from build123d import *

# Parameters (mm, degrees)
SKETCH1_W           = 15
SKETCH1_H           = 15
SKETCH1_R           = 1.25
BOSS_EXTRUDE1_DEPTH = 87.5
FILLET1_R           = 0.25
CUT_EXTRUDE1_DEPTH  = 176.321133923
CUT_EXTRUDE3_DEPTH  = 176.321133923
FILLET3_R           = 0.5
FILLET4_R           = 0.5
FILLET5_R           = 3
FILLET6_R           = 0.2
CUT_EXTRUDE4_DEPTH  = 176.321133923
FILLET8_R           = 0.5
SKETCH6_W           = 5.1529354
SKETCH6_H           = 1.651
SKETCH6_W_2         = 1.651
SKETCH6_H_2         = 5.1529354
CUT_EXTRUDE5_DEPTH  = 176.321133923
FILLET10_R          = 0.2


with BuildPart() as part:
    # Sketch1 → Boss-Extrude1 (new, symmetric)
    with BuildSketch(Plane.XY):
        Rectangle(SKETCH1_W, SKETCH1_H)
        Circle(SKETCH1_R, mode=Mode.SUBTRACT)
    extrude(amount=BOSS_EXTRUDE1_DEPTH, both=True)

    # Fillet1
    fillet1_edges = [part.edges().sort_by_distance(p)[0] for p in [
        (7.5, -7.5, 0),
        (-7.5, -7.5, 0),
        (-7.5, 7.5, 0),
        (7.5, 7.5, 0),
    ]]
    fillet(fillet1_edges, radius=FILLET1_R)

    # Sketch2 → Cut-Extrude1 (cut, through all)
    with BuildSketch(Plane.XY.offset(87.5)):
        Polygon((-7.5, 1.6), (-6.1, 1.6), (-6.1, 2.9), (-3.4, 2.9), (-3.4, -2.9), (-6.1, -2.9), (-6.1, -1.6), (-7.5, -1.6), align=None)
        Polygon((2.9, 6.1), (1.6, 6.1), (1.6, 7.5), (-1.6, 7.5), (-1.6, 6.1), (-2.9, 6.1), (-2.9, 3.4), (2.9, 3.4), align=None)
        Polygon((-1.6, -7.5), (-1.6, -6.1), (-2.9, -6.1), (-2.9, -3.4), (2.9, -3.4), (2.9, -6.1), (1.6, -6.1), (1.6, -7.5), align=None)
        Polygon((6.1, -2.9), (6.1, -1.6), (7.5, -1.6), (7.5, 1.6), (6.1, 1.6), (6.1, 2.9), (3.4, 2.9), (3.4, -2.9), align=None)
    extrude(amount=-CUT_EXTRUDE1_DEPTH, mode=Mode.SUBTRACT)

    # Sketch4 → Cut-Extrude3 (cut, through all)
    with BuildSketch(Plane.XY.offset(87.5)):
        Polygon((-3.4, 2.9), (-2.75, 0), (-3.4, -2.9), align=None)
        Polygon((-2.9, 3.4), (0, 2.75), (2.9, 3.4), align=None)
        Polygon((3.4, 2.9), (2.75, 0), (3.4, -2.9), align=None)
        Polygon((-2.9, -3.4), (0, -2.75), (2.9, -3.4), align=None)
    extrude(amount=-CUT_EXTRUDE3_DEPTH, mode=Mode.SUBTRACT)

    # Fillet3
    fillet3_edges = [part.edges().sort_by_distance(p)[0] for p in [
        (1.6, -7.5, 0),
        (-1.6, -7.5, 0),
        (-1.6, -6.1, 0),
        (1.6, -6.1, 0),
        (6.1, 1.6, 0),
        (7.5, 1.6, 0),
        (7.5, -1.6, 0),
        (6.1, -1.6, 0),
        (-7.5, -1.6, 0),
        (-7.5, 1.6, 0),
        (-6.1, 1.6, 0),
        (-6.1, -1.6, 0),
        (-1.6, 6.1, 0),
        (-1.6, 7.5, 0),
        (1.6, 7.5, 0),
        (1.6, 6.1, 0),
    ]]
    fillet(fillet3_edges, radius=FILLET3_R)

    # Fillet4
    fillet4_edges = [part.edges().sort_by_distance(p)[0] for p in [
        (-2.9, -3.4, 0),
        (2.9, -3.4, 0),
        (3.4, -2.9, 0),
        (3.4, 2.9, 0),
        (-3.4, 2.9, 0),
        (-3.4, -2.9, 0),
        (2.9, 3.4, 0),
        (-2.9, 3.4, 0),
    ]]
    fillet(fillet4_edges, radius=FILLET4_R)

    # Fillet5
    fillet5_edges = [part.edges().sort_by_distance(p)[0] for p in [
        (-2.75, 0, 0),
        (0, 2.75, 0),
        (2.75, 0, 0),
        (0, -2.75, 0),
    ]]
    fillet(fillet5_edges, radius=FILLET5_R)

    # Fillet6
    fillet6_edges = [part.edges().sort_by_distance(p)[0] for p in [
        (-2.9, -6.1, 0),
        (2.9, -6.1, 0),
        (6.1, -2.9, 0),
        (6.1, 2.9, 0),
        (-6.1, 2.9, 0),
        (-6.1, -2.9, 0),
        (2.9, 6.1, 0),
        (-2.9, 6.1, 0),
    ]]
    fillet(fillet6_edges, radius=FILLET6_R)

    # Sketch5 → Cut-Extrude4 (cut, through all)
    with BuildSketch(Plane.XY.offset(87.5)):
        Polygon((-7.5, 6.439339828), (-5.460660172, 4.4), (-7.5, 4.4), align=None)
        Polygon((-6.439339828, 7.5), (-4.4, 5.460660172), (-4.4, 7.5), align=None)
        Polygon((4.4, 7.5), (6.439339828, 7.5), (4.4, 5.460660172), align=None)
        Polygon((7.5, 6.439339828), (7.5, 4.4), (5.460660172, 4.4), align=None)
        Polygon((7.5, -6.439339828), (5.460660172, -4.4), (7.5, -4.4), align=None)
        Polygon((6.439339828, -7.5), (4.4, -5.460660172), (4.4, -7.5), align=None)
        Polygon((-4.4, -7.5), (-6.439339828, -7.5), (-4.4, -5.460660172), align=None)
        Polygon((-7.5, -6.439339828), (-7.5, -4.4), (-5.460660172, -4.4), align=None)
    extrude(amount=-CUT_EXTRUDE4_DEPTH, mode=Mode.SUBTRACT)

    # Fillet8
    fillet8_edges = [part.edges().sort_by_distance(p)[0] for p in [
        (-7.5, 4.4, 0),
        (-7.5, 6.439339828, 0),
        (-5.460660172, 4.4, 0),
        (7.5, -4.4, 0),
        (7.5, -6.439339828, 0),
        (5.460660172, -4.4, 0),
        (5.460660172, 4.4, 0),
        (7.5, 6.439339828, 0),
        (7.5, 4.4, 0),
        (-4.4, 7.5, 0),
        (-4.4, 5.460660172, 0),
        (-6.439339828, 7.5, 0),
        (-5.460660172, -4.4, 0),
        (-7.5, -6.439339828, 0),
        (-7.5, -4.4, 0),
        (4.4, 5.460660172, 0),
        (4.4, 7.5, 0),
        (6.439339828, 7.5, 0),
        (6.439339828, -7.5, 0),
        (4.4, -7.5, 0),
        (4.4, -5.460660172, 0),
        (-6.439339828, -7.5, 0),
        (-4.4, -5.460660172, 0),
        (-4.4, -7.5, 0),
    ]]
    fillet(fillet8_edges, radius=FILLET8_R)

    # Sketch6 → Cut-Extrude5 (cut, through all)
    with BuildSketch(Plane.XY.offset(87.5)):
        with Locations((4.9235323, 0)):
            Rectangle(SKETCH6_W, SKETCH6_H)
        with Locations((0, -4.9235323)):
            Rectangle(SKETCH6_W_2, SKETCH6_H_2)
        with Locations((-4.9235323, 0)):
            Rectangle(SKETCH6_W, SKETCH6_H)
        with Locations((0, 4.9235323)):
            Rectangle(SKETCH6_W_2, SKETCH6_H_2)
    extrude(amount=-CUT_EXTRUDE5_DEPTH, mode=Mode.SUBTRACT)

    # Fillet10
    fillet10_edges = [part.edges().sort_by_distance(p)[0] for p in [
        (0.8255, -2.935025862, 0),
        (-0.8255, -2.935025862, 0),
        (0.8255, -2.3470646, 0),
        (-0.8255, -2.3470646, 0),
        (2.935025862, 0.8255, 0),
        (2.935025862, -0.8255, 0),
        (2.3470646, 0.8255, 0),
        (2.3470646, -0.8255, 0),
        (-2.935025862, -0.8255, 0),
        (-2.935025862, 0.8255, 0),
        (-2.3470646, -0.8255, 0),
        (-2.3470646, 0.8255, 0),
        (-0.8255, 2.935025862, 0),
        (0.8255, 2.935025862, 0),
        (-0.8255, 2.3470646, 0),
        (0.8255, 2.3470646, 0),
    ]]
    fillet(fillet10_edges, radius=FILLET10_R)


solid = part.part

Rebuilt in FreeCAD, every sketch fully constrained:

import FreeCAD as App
import Part
import Sketcher
Q = App.Units.Quantity


def edges_at(feature, points):
    """Names of the edges that pass closest to the given points."""
    edges = feature.Shape.Edges
    near = lambda p: min(range(len(edges)), key=lambda i: edges[i].distToShape(Part.Vertex(*p))[0])
    return sorted({f"Edge{near(p) + 1}" for p in points})

doc = App.newDocument("Part")
body = doc.addObject("PartDesign::Body", "Body")

# Sketch on XY plane
sketch1 = doc.addObject("Sketcher::SketchObject", "Sketch")
body.addObject(sketch1)
sketch1.AttachmentSupport = (doc.XY_Plane, [""])
sketch1.MapMode = "FlatFace"
sketch1.addGeometry(Part.LineSegment(App.Vector(-7.5, 7.5, 0), App.Vector(-7.5, -7.5, 0)), False)
sketch1.addGeometry(Part.LineSegment(App.Vector(-7.5, -7.5, 0), App.Vector(7.5, -7.5, 0)), False)
sketch1.addGeometry(Part.LineSegment(App.Vector(7.5, -7.5, 0), App.Vector(7.5, 7.5, 0)), False)
sketch1.addGeometry(Part.LineSegment(App.Vector(7.5, 7.5, 0), App.Vector(-7.5, 7.5, 0)), False)
sketch1.addGeometry(Part.Circle(App.Vector(0, 0, 0), App.Vector(0, 0, 1), 1.25), False)
sketch1.addConstraint(Sketcher.Constraint("Coincident", 0, 2, 1, 1))
sketch1.addConstraint(Sketcher.Constraint("Coincident", 1, 2, 2, 1))
sketch1.addConstraint(Sketcher.Constraint("Coincident", 2, 2, 3, 1))
sketch1.addConstraint(Sketcher.Constraint("Coincident", 3, 2, 0, 1))
sketch1.addConstraint(Sketcher.Constraint("Vertical", 0))
sketch1.addConstraint(Sketcher.Constraint("Horizontal", 1))
sketch1.addConstraint(Sketcher.Constraint("Vertical", 2))
sketch1.addConstraint(Sketcher.Constraint("Horizontal", 3))
sketch1.addConstraint(Sketcher.Constraint("Coincident", 4, 3, -1, 1))
sketch1.addConstraint(Sketcher.Constraint("Symmetric", 0, 2, 2, 2, -1, 1))
sketch1.addConstraint(Sketcher.Constraint("Equal", 3, 0))
sketch1.addConstraint(Sketcher.Constraint("Diameter", 4, Q("2.5 mm")))
sketch1.addConstraint(Sketcher.Constraint("DistanceX", 1, 1, 1, 2, Q("15 mm")))
pad1 = doc.addObject("PartDesign::Pad", "Pad")
body.addObject(pad1)
pad1.Profile = sketch1
pad1.Length = 175
pad1.Midplane = True
doc.recompute()

fillet = doc.addObject("PartDesign::Fillet", "Fillet")
body.addObject(fillet)
fillet.Base = (pad1, edges_at(pad1, [
    (7.5, -7.5, 0),
    (-7.5, -7.5, 0),
    (-7.5, 7.5, 0),
    (7.5, 7.5, 0),
]))
fillet.Radius = 0.25

# Sketch on XY plane
sketch2 = doc.addObject("Sketcher::SketchObject", "Sketch001")
body.addObject(sketch2)
sketch2.AttachmentSupport = (doc.XY_Plane, [""])
sketch2.MapMode = "FlatFace"
sketch2.AttachmentOffset = App.Placement(App.Vector(0, 0, 87.5), App.Rotation())
sketch2.addGeometry(Part.LineSegment(App.Vector(-6.1, 1.6, 0), App.Vector(-7.5, 1.6, 0)), False)
sketch2.addGeometry(Part.LineSegment(App.Vector(-7.5, 1.6, 0), App.Vector(-7.5, -1.6, 0)), False)
sketch2.addGeometry(Part.LineSegment(App.Vector(-7.5, -1.6, 0), App.Vector(-6.1, -1.6, 0)), False)
sketch2.addGeometry(Part.LineSegment(App.Vector(-6.1, -1.6, 0), App.Vector(-6.1, -2.9, 0)), False)
sketch2.addGeometry(Part.LineSegment(App.Vector(-6.1, -2.9, 0), App.Vector(-3.4, -2.9, 0)), False)
sketch2.addGeometry(Part.LineSegment(App.Vector(-3.4, -2.9, 0), App.Vector(-3.4, 2.9, 0)), False)
sketch2.addGeometry(Part.LineSegment(App.Vector(-3.4, 2.9, 0), App.Vector(-6.1, 2.9, 0)), False)
sketch2.addGeometry(Part.LineSegment(App.Vector(-6.1, 2.9, 0), App.Vector(-6.1, 1.6, 0)), False)
sketch2.addGeometry(Part.LineSegment(App.Vector(2.9, 6.1, 0), App.Vector(1.6, 6.1, 0)), False)
sketch2.addGeometry(Part.LineSegment(App.Vector(1.6, 6.1, 0), App.Vector(1.6, 7.5, 0)), False)
sketch2.addGeometry(Part.LineSegment(App.Vector(1.6, 7.5, 0), App.Vector(-1.6, 7.5, 0)), False)
sketch2.addGeometry(Part.LineSegment(App.Vector(-1.6, 7.5, 0), App.Vector(-1.6, 6.1, 0)), False)
sketch2.addGeometry(Part.LineSegment(App.Vector(-1.6, 6.1, 0), App.Vector(-2.9, 6.1, 0)), False)
sketch2.addGeometry(Part.LineSegment(App.Vector(-2.9, 6.1, 0), App.Vector(-2.9, 3.4, 0)), False)
sketch2.addGeometry(Part.LineSegment(App.Vector(-2.9, 3.4, 0), App.Vector(2.9, 3.4, 0)), False)
sketch2.addGeometry(Part.LineSegment(App.Vector(2.9, 3.4, 0), App.Vector(2.9, 6.1, 0)), False)
sketch2.addGeometry(Part.LineSegment(App.Vector(-1.6, -6.1, 0), App.Vector(-1.6, -7.5, 0)), False)
sketch2.addGeometry(Part.LineSegment(App.Vector(-1.6, -7.5, 0), App.Vector(1.6, -7.5, 0)), False)
sketch2.addGeometry(Part.LineSegment(App.Vector(1.6, -7.5, 0), App.Vector(1.6, -6.1, 0)), False)
sketch2.addGeometry(Part.LineSegment(App.Vector(1.6, -6.1, 0), App.Vector(2.9, -6.1, 0)), False)
sketch2.addGeometry(Part.LineSegment(App.Vector(2.9, -6.1, 0), App.Vector(2.9, -3.4, 0)), False)
sketch2.addGeometry(Part.LineSegment(App.Vector(2.9, -3.4, 0), App.Vector(-2.9, -3.4, 0)), False)
sketch2.addGeometry(Part.LineSegment(App.Vector(-2.9, -3.4, 0), App.Vector(-2.9, -6.1, 0)), False)
sketch2.addGeometry(Part.LineSegment(App.Vector(-2.9, -6.1, 0), App.Vector(-1.6, -6.1, 0)), False)
sketch2.addGeometry(Part.LineSegment(App.Vector(6.1, -2.9, 0), App.Vector(6.1, -1.6, 0)), False)
sketch2.addGeometry(Part.LineSegment(App.Vector(6.1, -1.6, 0), App.Vector(7.5, -1.6, 0)), False)
sketch2.addGeometry(Part.LineSegment(App.Vector(7.5, -1.6, 0), App.Vector(7.5, 1.6, 0)), False)
sketch2.addGeometry(Part.LineSegment(App.Vector(7.5, 1.6, 0), App.Vector(6.1, 1.6, 0)), False)
sketch2.addGeometry(Part.LineSegment(App.Vector(6.1, 1.6, 0), App.Vector(6.1, 2.9, 0)), False)
sketch2.addGeometry(Part.LineSegment(App.Vector(6.1, 2.9, 0), App.Vector(3.4, 2.9, 0)), False)
sketch2.addGeometry(Part.LineSegment(App.Vector(3.4, 2.9, 0), App.Vector(3.4, -2.9, 0)), False)
sketch2.addGeometry(Part.LineSegment(App.Vector(3.4, -2.9, 0), App.Vector(6.1, -2.9, 0)), False)
sketch2.addConstraint(Sketcher.Constraint("Coincident", 0, 2, 1, 1))
sketch2.addConstraint(Sketcher.Constraint("Coincident", 1, 2, 2, 1))
sketch2.addConstraint(Sketcher.Constraint("Coincident", 2, 2, 3, 1))
sketch2.addConstraint(Sketcher.Constraint("Coincident", 3, 2, 4, 1))
sketch2.addConstraint(Sketcher.Constraint("Coincident", 4, 2, 5, 1))
sketch2.addConstraint(Sketcher.Constraint("Coincident", 5, 2, 6, 1))
sketch2.addConstraint(Sketcher.Constraint("Coincident", 6, 2, 7, 1))
sketch2.addConstraint(Sketcher.Constraint("Coincident", 7, 2, 0, 1))
sketch2.addConstraint(Sketcher.Constraint("Coincident", 8, 2, 9, 1))
sketch2.addConstraint(Sketcher.Constraint("Coincident", 9, 2, 10, 1))
sketch2.addConstraint(Sketcher.Constraint("Coincident", 10, 2, 11, 1))
sketch2.addConstraint(Sketcher.Constraint("Coincident", 11, 2, 12, 1))
sketch2.addConstraint(Sketcher.Constraint("Coincident", 12, 2, 13, 1))
sketch2.addConstraint(Sketcher.Constraint("Coincident", 13, 2, 14, 1))
sketch2.addConstraint(Sketcher.Constraint("Coincident", 14, 2, 15, 1))
sketch2.addConstraint(Sketcher.Constraint("Coincident", 15, 2, 8, 1))
sketch2.addConstraint(Sketcher.Constraint("Coincident", 16, 2, 17, 1))
sketch2.addConstraint(Sketcher.Constraint("Coincident", 17, 2, 18, 1))
sketch2.addConstraint(Sketcher.Constraint("Coincident", 18, 2, 19, 1))
sketch2.addConstraint(Sketcher.Constraint("Coincident", 19, 2, 20, 1))
sketch2.addConstraint(Sketcher.Constraint("Coincident", 20, 2, 21, 1))
sketch2.addConstraint(Sketcher.Constraint("Coincident", 21, 2, 22, 1))
sketch2.addConstraint(Sketcher.Constraint("Coincident", 22, 2, 23, 1))
sketch2.addConstraint(Sketcher.Constraint("Coincident", 23, 2, 16, 1))
sketch2.addConstraint(Sketcher.Constraint("Coincident", 24, 2, 25, 1))
sketch2.addConstraint(Sketcher.Constraint("Coincident", 25, 2, 26, 1))
sketch2.addConstraint(Sketcher.Constraint("Coincident", 26, 2, 27, 1))
sketch2.addConstraint(Sketcher.Constraint("Coincident", 27, 2, 28, 1))
sketch2.addConstraint(Sketcher.Constraint("Coincident", 28, 2, 29, 1))
sketch2.addConstraint(Sketcher.Constraint("Coincident", 29, 2, 30, 1))
sketch2.addConstraint(Sketcher.Constraint("Coincident", 30, 2, 31, 1))
sketch2.addConstraint(Sketcher.Constraint("Coincident", 31, 2, 24, 1))
sketch2.addConstraint(Sketcher.Constraint("Horizontal", 0))
sketch2.addConstraint(Sketcher.Constraint("Vertical", 1))
sketch2.addConstraint(Sketcher.Constraint("Horizontal", 2))
sketch2.addConstraint(Sketcher.Constraint("Vertical", 3))
sketch2.addConstraint(Sketcher.Constraint("Horizontal", 4))
sketch2.addConstraint(Sketcher.Constraint("Vertical", 5))
sketch2.addConstraint(Sketcher.Constraint("Horizontal", 6))
sketch2.addConstraint(Sketcher.Constraint("Vertical", 7))
sketch2.addConstraint(Sketcher.Constraint("Horizontal", 8))
sketch2.addConstraint(Sketcher.Constraint("Vertical", 9))
sketch2.addConstraint(Sketcher.Constraint("Horizontal", 10))
sketch2.addConstraint(Sketcher.Constraint("Vertical", 11))
sketch2.addConstraint(Sketcher.Constraint("Horizontal", 12))
sketch2.addConstraint(Sketcher.Constraint("Vertical", 13))
sketch2.addConstraint(Sketcher.Constraint("Horizontal", 14))
sketch2.addConstraint(Sketcher.Constraint("Vertical", 15))
sketch2.addConstraint(Sketcher.Constraint("Vertical", 16))
sketch2.addConstraint(Sketcher.Constraint("Horizontal", 17))
sketch2.addConstraint(Sketcher.Constraint("Vertical", 18))
sketch2.addConstraint(Sketcher.Constraint("Horizontal", 19))
sketch2.addConstraint(Sketcher.Constraint("Vertical", 20))
sketch2.addConstraint(Sketcher.Constraint("Horizontal", 21))
sketch2.addConstraint(Sketcher.Constraint("Vertical", 22))
sketch2.addConstraint(Sketcher.Constraint("Horizontal", 23))
sketch2.addConstraint(Sketcher.Constraint("Vertical", 24))
sketch2.addConstraint(Sketcher.Constraint("Horizontal", 25))
sketch2.addConstraint(Sketcher.Constraint("Vertical", 26))
sketch2.addConstraint(Sketcher.Constraint("Horizontal", 27))
sketch2.addConstraint(Sketcher.Constraint("Vertical", 28))
sketch2.addConstraint(Sketcher.Constraint("Horizontal", 29))
sketch2.addConstraint(Sketcher.Constraint("Vertical", 30))
sketch2.addConstraint(Sketcher.Constraint("Horizontal", 31))
sketch2.addConstraint(Sketcher.Constraint("Symmetric", 9, 2, 16, 2, -1, 1))
sketch2.addConstraint(Sketcher.Constraint("Symmetric", 11, 2, 18, 2, -1, 1))
sketch2.addConstraint(Sketcher.Constraint("Symmetric", 13, 2, 20, 2, -1, 1))
sketch2.addConstraint(Sketcher.Constraint("Symmetric", 15, 2, 22, 2, -1, 1))
sketch2.addConstraint(Sketcher.Constraint("Symmetric", 7, 2, 24, 2, -1, 1))
sketch2.addConstraint(Sketcher.Constraint("Symmetric", 1, 2, 26, 2, -1, 1))
sketch2.addConstraint(Sketcher.Constraint("Symmetric", 3, 2, 28, 2, -1, 1))
sketch2.addConstraint(Sketcher.Constraint("Symmetric", 5, 2, 30, 2, -1, 1))
sketch2.addConstraint(Sketcher.Constraint("Symmetric", 8, 2, 11, 2, -2))
sketch2.addConstraint(Sketcher.Constraint("Symmetric", 2, 2, 24, 2, -2))
sketch2.addConstraint(Sketcher.Constraint("Horizontal", 6, 2, 28, 2))
sketch2.addConstraint(Sketcher.Constraint("Vertical", 15, 2, 19, 2))
sketch2.addConstraint(Sketcher.Constraint("Equal", 17, 1))
sketch2.addConstraint(Sketcher.Constraint("Equal", 23, 3))
sketch2.addConstraint(Sketcher.Constraint("Equal", 27, 9))
sketch2.addConstraint(Sketcher.Constraint("Equal", 31, 13))
sketch2.addConstraint(Sketcher.Constraint("DistanceX", 0, 2, 0, 1, Q("1.4 mm")))
sketch2.addConstraint(Sketcher.Constraint("DistanceX", 4, 1, 4, 2, Q("2.7 mm")))
sketch2.addConstraint(Sketcher.Constraint("DistanceX", 8, 2, 8, 1, Q("1.3 mm")))
sketch2.addConstraint(Sketcher.Constraint("DistanceX", 10, 2, 10, 1, Q("3.2 mm")))
sketch2.addConstraint(Sketcher.Constraint("DistanceX", 5, 2, 8, 2, Q("5 mm")))
sketch2.addConstraint(Sketcher.Constraint("DistanceY", 4, 2, 8, 2, Q("9 mm")))
pocket1 = doc.addObject("PartDesign::Pocket", "Pocket")
body.addObject(pocket1)
pocket1.Profile = sketch2
pocket1.Type = "ThroughAll"

# Sketch on XY plane
sketch3 = doc.addObject("Sketcher::SketchObject", "Sketch002")
body.addObject(sketch3)
sketch3.AttachmentSupport = (doc.XY_Plane, [""])
sketch3.MapMode = "FlatFace"
sketch3.AttachmentOffset = App.Placement(App.Vector(0, 0, 87.5), App.Rotation())
sketch3.addGeometry(Part.LineSegment(App.Vector(-2.75, 0, 0), App.Vector(-3.4, 2.9, 0)), False)
sketch3.addGeometry(Part.LineSegment(App.Vector(-3.4, 2.9, 0), App.Vector(-3.4, -2.9, 0)), False)
sketch3.addGeometry(Part.LineSegment(App.Vector(-3.4, -2.9, 0), App.Vector(-2.75, 0, 0)), False)
sketch3.addGeometry(Part.LineSegment(App.Vector(-2.9, 3.4, 0), App.Vector(0, 2.75, 0)), False)
sketch3.addGeometry(Part.LineSegment(App.Vector(0, 2.75, 0), App.Vector(2.9, 3.4, 0)), False)
sketch3.addGeometry(Part.LineSegment(App.Vector(2.9, 3.4, 0), App.Vector(-2.9, 3.4, 0)), False)
sketch3.addGeometry(Part.LineSegment(App.Vector(3.4, 2.9, 0), App.Vector(2.75, 0, 0)), False)
sketch3.addGeometry(Part.LineSegment(App.Vector(2.75, 0, 0), App.Vector(3.4, -2.9, 0)), False)
sketch3.addGeometry(Part.LineSegment(App.Vector(3.4, -2.9, 0), App.Vector(3.4, 2.9, 0)), False)
sketch3.addGeometry(Part.LineSegment(App.Vector(0, -2.75, 0), App.Vector(-2.9, -3.4, 0)), False)
sketch3.addGeometry(Part.LineSegment(App.Vector(-2.9, -3.4, 0), App.Vector(2.9, -3.4, 0)), False)
sketch3.addGeometry(Part.LineSegment(App.Vector(2.9, -3.4, 0), App.Vector(0, -2.75, 0)), False)
sketch3.addConstraint(Sketcher.Constraint("Coincident", 0, 2, 1, 1))
sketch3.addConstraint(Sketcher.Constraint("Coincident", 1, 2, 2, 1))
sketch3.addConstraint(Sketcher.Constraint("Coincident", 2, 2, 0, 1))
sketch3.addConstraint(Sketcher.Constraint("Coincident", 3, 2, 4, 1))
sketch3.addConstraint(Sketcher.Constraint("Coincident", 4, 2, 5, 1))
sketch3.addConstraint(Sketcher.Constraint("Coincident", 5, 2, 3, 1))
sketch3.addConstraint(Sketcher.Constraint("Coincident", 6, 2, 7, 1))
sketch3.addConstraint(Sketcher.Constraint("Coincident", 7, 2, 8, 1))
sketch3.addConstraint(Sketcher.Constraint("Coincident", 8, 2, 6, 1))
sketch3.addConstraint(Sketcher.Constraint("Coincident", 9, 2, 10, 1))
sketch3.addConstraint(Sketcher.Constraint("Coincident", 10, 2, 11, 1))
sketch3.addConstraint(Sketcher.Constraint("Coincident", 11, 2, 9, 1))
sketch3.addConstraint(Sketcher.Constraint("Vertical", 1))
sketch3.addConstraint(Sketcher.Constraint("Horizontal", 5))
sketch3.addConstraint(Sketcher.Constraint("Vertical", 8))
sketch3.addConstraint(Sketcher.Constraint("Horizontal", 10))
sketch3.addConstraint(Sketcher.Constraint("Symmetric", 2, 2, 6, 2, -1, 1))
sketch3.addConstraint(Sketcher.Constraint("Symmetric", 0, 2, 7, 2, -1, 1))
sketch3.addConstraint(Sketcher.Constraint("Symmetric", 4, 2, 9, 2, -1, 1))
sketch3.addConstraint(Sketcher.Constraint("Symmetric", 3, 2, 11, 2, -1, 1))
sketch3.addConstraint(Sketcher.Constraint("PointOnObject", 2, 2, -1))
sketch3.addConstraint(Sketcher.Constraint("PointOnObject", 3, 2, -2))
sketch3.addConstraint(Sketcher.Constraint("Perpendicular", 2, 3))
sketch3.addConstraint(Sketcher.Constraint("Perpendicular", 0, 4))
sketch3.addConstraint(Sketcher.Constraint("Perpendicular", 3, 6))
sketch3.addConstraint(Sketcher.Constraint("Perpendicular", 6, 11))
sketch3.addConstraint(Sketcher.Constraint("Horizontal", 1, 2, 7, 2))
sketch3.addConstraint(Sketcher.Constraint("Equal", 10, 1))
sketch3.addConstraint(Sketcher.Constraint("DistanceX", 5, 2, 5, 1, Q("5.8 mm")))
sketch3.addConstraint(Sketcher.Constraint("DistanceX", 0, 2, -1, 1, Q("3.4 mm")))
sketch3.addConstraint(Sketcher.Constraint("DistanceY", -1, 1, 4, 2, Q("3.4 mm")))
sketch3.addConstraint(Sketcher.Constraint("DistanceX", 2, 2, 6, 2, Q("5.5 mm")))
pocket2 = doc.addObject("PartDesign::Pocket", "Pocket001")
body.addObject(pocket2)
pocket2.Profile = sketch3
pocket2.Type = "ThroughAll"
doc.recompute()

fillet2 = doc.addObject("PartDesign::Fillet", "Fillet001")
body.addObject(fillet2)
fillet2.Base = (pocket2, edges_at(pocket2, [
    (1.6, -7.5, 0),
    (-1.6, -7.5, 0),
    (-1.6, -6.1, 0),
    (1.6, -6.1, 0),
    (6.1, 1.6, 0),
    (7.5, 1.6, 0),
    (7.5, -1.6, 0),
    (6.1, -1.6, 0),
    (-7.5, -1.6, 0),
    (-7.5, 1.6, 0),
    (-6.1, 1.6, 0),
    (-6.1, -1.6, 0),
    (-1.6, 6.1, 0),
    (-1.6, 7.5, 0),
    (1.6, 7.5, 0),
    (1.6, 6.1, 0),
]))
fillet2.Radius = 0.5
doc.recompute()

fillet3 = doc.addObject("PartDesign::Fillet", "Fillet002")
body.addObject(fillet3)
fillet3.Base = (fillet2, edges_at(fillet2, [
    (-2.9, -3.4, 0),
    (2.9, -3.4, 0),
    (3.4, -2.9, 0),
    (3.4, 2.9, 0),
    (-3.4, 2.9, 0),
    (-3.4, -2.9, 0),
    (2.9, 3.4, 0),
    (-2.9, 3.4, 0),
]))
fillet3.Radius = 0.5
doc.recompute()

fillet4 = doc.addObject("PartDesign::Fillet", "Fillet003")
body.addObject(fillet4)
fillet4.Base = (fillet3, edges_at(fillet3, [
    (-2.75, 0, 0),
    (0, 2.75, 0),
    (2.75, 0, 0),
    (0, -2.75, 0),
]))
fillet4.Radius = 3
doc.recompute()

fillet5 = doc.addObject("PartDesign::Fillet", "Fillet004")
body.addObject(fillet5)
fillet5.Base = (fillet4, edges_at(fillet4, [
    (-2.9, -6.1, 0),
    (2.9, -6.1, 0),
    (6.1, -2.9, 0),
    (6.1, 2.9, 0),
    (-6.1, 2.9, 0),
    (-6.1, -2.9, 0),
    (2.9, 6.1, 0),
    (-2.9, 6.1, 0),
]))
fillet5.Radius = 0.2

# Sketch on XY plane
sketch4 = doc.addObject("Sketcher::SketchObject", "Sketch003")
body.addObject(sketch4)
sketch4.AttachmentSupport = (doc.XY_Plane, [""])
sketch4.MapMode = "FlatFace"
sketch4.AttachmentOffset = App.Placement(App.Vector(0, 0, 87.5), App.Rotation())
sketch4.addGeometry(Part.LineSegment(App.Vector(-5.46066, 4.4, 0), App.Vector(-7.5, 6.43934, 0)), False)
sketch4.addGeometry(Part.LineSegment(App.Vector(-7.5, 6.43934, 0), App.Vector(-7.5, 4.4, 0)), False)
sketch4.addGeometry(Part.LineSegment(App.Vector(-7.5, 4.4, 0), App.Vector(-5.46066, 4.4, 0)), False)
sketch4.addGeometry(Part.LineSegment(App.Vector(-6.43934, 7.5, 0), App.Vector(-4.4, 5.46066, 0)), False)
sketch4.addGeometry(Part.LineSegment(App.Vector(-4.4, 5.46066, 0), App.Vector(-4.4, 7.5, 0)), False)
sketch4.addGeometry(Part.LineSegment(App.Vector(-4.4, 7.5, 0), App.Vector(-6.43934, 7.5, 0)), False)
sketch4.addGeometry(Part.LineSegment(App.Vector(6.43934, 7.5, 0), App.Vector(4.4, 7.5, 0)), False)
sketch4.addGeometry(Part.LineSegment(App.Vector(4.4, 7.5, 0), App.Vector(4.4, 5.46066, 0)), False)
sketch4.addGeometry(Part.LineSegment(App.Vector(4.4, 5.46066, 0), App.Vector(6.43934, 7.5, 0)), False)
sketch4.addGeometry(Part.LineSegment(App.Vector(7.5, 4.4, 0), App.Vector(7.5, 6.43934, 0)), False)
sketch4.addGeometry(Part.LineSegment(App.Vector(7.5, 6.43934, 0), App.Vector(5.46066, 4.4, 0)), False)
sketch4.addGeometry(Part.LineSegment(App.Vector(5.46066, 4.4, 0), App.Vector(7.5, 4.4, 0)), False)
sketch4.addGeometry(Part.LineSegment(App.Vector(5.46066, -4.4, 0), App.Vector(7.5, -6.43934, 0)), False)
sketch4.addGeometry(Part.LineSegment(App.Vector(7.5, -6.43934, 0), App.Vector(7.5, -4.4, 0)), False)
sketch4.addGeometry(Part.LineSegment(App.Vector(7.5, -4.4, 0), App.Vector(5.46066, -4.4, 0)), False)
sketch4.addGeometry(Part.LineSegment(App.Vector(6.43934, -7.5, 0), App.Vector(4.4, -5.46066, 0)), False)
sketch4.addGeometry(Part.LineSegment(App.Vector(4.4, -5.46066, 0), App.Vector(4.4, -7.5, 0)), False)
sketch4.addGeometry(Part.LineSegment(App.Vector(4.4, -7.5, 0), App.Vector(6.43934, -7.5, 0)), False)
sketch4.addGeometry(Part.LineSegment(App.Vector(-6.43934, -7.5, 0), App.Vector(-4.4, -7.5, 0)), False)
sketch4.addGeometry(Part.LineSegment(App.Vector(-4.4, -7.5, 0), App.Vector(-4.4, -5.46066, 0)), False)
sketch4.addGeometry(Part.LineSegment(App.Vector(-4.4, -5.46066, 0), App.Vector(-6.43934, -7.5, 0)), False)
sketch4.addGeometry(Part.LineSegment(App.Vector(-7.5, -4.4, 0), App.Vector(-7.5, -6.43934, 0)), False)
sketch4.addGeometry(Part.LineSegment(App.Vector(-7.5, -6.43934, 0), App.Vector(-5.46066, -4.4, 0)), False)
sketch4.addGeometry(Part.LineSegment(App.Vector(-5.46066, -4.4, 0), App.Vector(-7.5, -4.4, 0)), False)
sketch4.addConstraint(Sketcher.Constraint("Coincident", 0, 2, 1, 1))
sketch4.addConstraint(Sketcher.Constraint("Coincident", 1, 2, 2, 1))
sketch4.addConstraint(Sketcher.Constraint("Coincident", 2, 2, 0, 1))
sketch4.addConstraint(Sketcher.Constraint("Coincident", 3, 2, 4, 1))
sketch4.addConstraint(Sketcher.Constraint("Coincident", 4, 2, 5, 1))
sketch4.addConstraint(Sketcher.Constraint("Coincident", 5, 2, 3, 1))
sketch4.addConstraint(Sketcher.Constraint("Coincident", 6, 2, 7, 1))
sketch4.addConstraint(Sketcher.Constraint("Coincident", 7, 2, 8, 1))
sketch4.addConstraint(Sketcher.Constraint("Coincident", 8, 2, 6, 1))
sketch4.addConstraint(Sketcher.Constraint("Coincident", 9, 2, 10, 1))
sketch4.addConstraint(Sketcher.Constraint("Coincident", 10, 2, 11, 1))
sketch4.addConstraint(Sketcher.Constraint("Coincident", 11, 2, 9, 1))
sketch4.addConstraint(Sketcher.Constraint("Coincident", 12, 2, 13, 1))
sketch4.addConstraint(Sketcher.Constraint("Coincident", 13, 2, 14, 1))
sketch4.addConstraint(Sketcher.Constraint("Coincident", 14, 2, 12, 1))
sketch4.addConstraint(Sketcher.Constraint("Coincident", 15, 2, 16, 1))
sketch4.addConstraint(Sketcher.Constraint("Coincident", 16, 2, 17, 1))
sketch4.addConstraint(Sketcher.Constraint("Coincident", 17, 2, 15, 1))
sketch4.addConstraint(Sketcher.Constraint("Coincident", 18, 2, 19, 1))
sketch4.addConstraint(Sketcher.Constraint("Coincident", 19, 2, 20, 1))
sketch4.addConstraint(Sketcher.Constraint("Coincident", 20, 2, 18, 1))
sketch4.addConstraint(Sketcher.Constraint("Coincident", 21, 2, 22, 1))
sketch4.addConstraint(Sketcher.Constraint("Coincident", 22, 2, 23, 1))
sketch4.addConstraint(Sketcher.Constraint("Coincident", 23, 2, 21, 1))
sketch4.addConstraint(Sketcher.Constraint("Vertical", 1))
sketch4.addConstraint(Sketcher.Constraint("Horizontal", 2))
sketch4.addConstraint(Sketcher.Constraint("Vertical", 4))
sketch4.addConstraint(Sketcher.Constraint("Horizontal", 5))
sketch4.addConstraint(Sketcher.Constraint("Horizontal", 6))
sketch4.addConstraint(Sketcher.Constraint("Vertical", 7))
sketch4.addConstraint(Sketcher.Constraint("Vertical", 9))
sketch4.addConstraint(Sketcher.Constraint("Horizontal", 11))
sketch4.addConstraint(Sketcher.Constraint("Vertical", 13))
sketch4.addConstraint(Sketcher.Constraint("Horizontal", 14))
sketch4.addConstraint(Sketcher.Constraint("Vertical", 16))
sketch4.addConstraint(Sketcher.Constraint("Horizontal", 17))
sketch4.addConstraint(Sketcher.Constraint("Horizontal", 18))
sketch4.addConstraint(Sketcher.Constraint("Vertical", 19))
sketch4.addConstraint(Sketcher.Constraint("Vertical", 21))
sketch4.addConstraint(Sketcher.Constraint("Horizontal", 23))
sketch4.addConstraint(Sketcher.Constraint("Symmetric", 0, 2, 12, 2, -1, 1))
sketch4.addConstraint(Sketcher.Constraint("Symmetric", 2, 2, 14, 2, -1, 1))
sketch4.addConstraint(Sketcher.Constraint("Symmetric", 3, 2, 15, 2, -1, 1))
sketch4.addConstraint(Sketcher.Constraint("Symmetric", 5, 2, 17, 2, -1, 1))
sketch4.addConstraint(Sketcher.Constraint("Symmetric", 6, 2, 18, 2, -1, 1))
sketch4.addConstraint(Sketcher.Constraint("Symmetric", 9, 2, 21, 2, -1, 1))
sketch4.addConstraint(Sketcher.Constraint("Symmetric", 10, 2, 22, 2, -1, 1))
sketch4.addConstraint(Sketcher.Constraint("Symmetric", 4, 2, 6, 2, -2))
sketch4.addConstraint(Sketcher.Constraint("Symmetric", 0, 2, 9, 2, -2))
sketch4.addConstraint(Sketcher.Constraint("Symmetric", 2, 2, 10, 2, -2))
sketch4.addConstraint(Sketcher.Constraint("Parallel", 0, 3))
sketch4.addConstraint(Sketcher.Constraint("Perpendicular", 3, 8))
sketch4.addConstraint(Sketcher.Constraint("Parallel", 8, 10))
sketch4.addConstraint(Sketcher.Constraint("Perpendicular", 15, 20))
sketch4.addConstraint(Sketcher.Constraint("Horizontal", 3, 2, 7, 2))
sketch4.addConstraint(Sketcher.Constraint("Horizontal", 15, 2, 19, 2))
sketch4.addConstraint(Sketcher.Constraint("Equal", 2, 5))
sketch4.addConstraint(Sketcher.Constraint("DistanceX", 0, 2, -1, 1, Q("7.5 mm")))
sketch4.addConstraint(Sketcher.Constraint("DistanceY", -1, 1, 1, 2, Q("4.4 mm")))
sketch4.addConstraint(Sketcher.Constraint("DistanceX", 3, 2, -1, 1, Q("4.4 mm")))
sketch4.addConstraint(Sketcher.Constraint("DistanceY", -1, 1, 4, 2, Q("7.5 mm")))
sketch4.addConstraint(Sketcher.Constraint("DistanceX", 2, 1, 2, 2, Q("2.03934 mm")))
pocket3 = doc.addObject("PartDesign::Pocket", "Pocket002")
body.addObject(pocket3)
pocket3.Profile = sketch4
pocket3.Type = "ThroughAll"
doc.recompute()

fillet6 = doc.addObject("PartDesign::Fillet", "Fillet005")
body.addObject(fillet6)
fillet6.Base = (pocket3, edges_at(pocket3, [
    (-7.5, 4.4, 0),
    (-7.5, 6.439, 0),
    (-5.461, 4.4, 0),
    (7.5, -4.4, 0),
    (7.5, -6.439, 0),
    (5.461, -4.4, 0),
    (5.461, 4.4, 0),
    (7.5, 6.439, 0),
    (7.5, 4.4, 0),
    (-4.4, 7.5, 0),
    (-4.4, 5.461, 0),
    (-6.439, 7.5, 0),
    (-5.461, -4.4, 0),
    (-7.5, -6.439, 0),
    (-7.5, -4.4, 0),
    (4.4, 5.461, 0),
    (4.4, 7.5, 0),
    (6.439, 7.5, 0),
    (6.439, -7.5, 0),
    (4.4, -7.5, 0),
    (4.4, -5.461, 0),
    (-6.439, -7.5, 0),
    (-4.4, -5.461, 0),
    (-4.4, -7.5, 0),
]))
fillet6.Radius = 0.5

# Sketch on XY plane
sketch5 = doc.addObject("Sketcher::SketchObject", "Sketch004")
body.addObject(sketch5)
sketch5.AttachmentSupport = (doc.XY_Plane, [""])
sketch5.MapMode = "FlatFace"
sketch5.AttachmentOffset = App.Placement(App.Vector(0, 0, 87.5), App.Rotation())
sketch5.addGeometry(Part.LineSegment(App.Vector(2.347065, 0.8255, 0), App.Vector(2.347065, -0.8255, 0)), False)
sketch5.addGeometry(Part.LineSegment(App.Vector(2.347065, -0.8255, 0), App.Vector(7.5, -0.8255, 0)), False)
sketch5.addGeometry(Part.LineSegment(App.Vector(7.5, -0.8255, 0), App.Vector(7.5, 0.8255, 0)), False)
sketch5.addGeometry(Part.LineSegment(App.Vector(7.5, 0.8255, 0), App.Vector(2.347065, 0.8255, 0)), False)
sketch5.addGeometry(Part.LineSegment(App.Vector(-0.8255, -2.347065, 0), App.Vector(-0.8255, -7.5, 0)), False)
sketch5.addGeometry(Part.LineSegment(App.Vector(-0.8255, -7.5, 0), App.Vector(0.8255, -7.5, 0)), False)
sketch5.addGeometry(Part.LineSegment(App.Vector(0.8255, -7.5, 0), App.Vector(0.8255, -2.347065, 0)), False)
sketch5.addGeometry(Part.LineSegment(App.Vector(0.8255, -2.347065, 0), App.Vector(-0.8255, -2.347065, 0)), False)
sketch5.addGeometry(Part.LineSegment(App.Vector(-7.5, 0.8255, 0), App.Vector(-7.5, -0.8255, 0)), False)
sketch5.addGeometry(Part.LineSegment(App.Vector(-7.5, -0.8255, 0), App.Vector(-2.347065, -0.8255, 0)), False)
sketch5.addGeometry(Part.LineSegment(App.Vector(-2.347065, -0.8255, 0), App.Vector(-2.347065, 0.8255, 0)), False)
sketch5.addGeometry(Part.LineSegment(App.Vector(-2.347065, 0.8255, 0), App.Vector(-7.5, 0.8255, 0)), False)
sketch5.addGeometry(Part.LineSegment(App.Vector(-0.8255, 7.5, 0), App.Vector(-0.8255, 2.347065, 0)), False)
sketch5.addGeometry(Part.LineSegment(App.Vector(-0.8255, 2.347065, 0), App.Vector(0.8255, 2.347065, 0)), False)
sketch5.addGeometry(Part.LineSegment(App.Vector(0.8255, 2.347065, 0), App.Vector(0.8255, 7.5, 0)), False)
sketch5.addGeometry(Part.LineSegment(App.Vector(0.8255, 7.5, 0), App.Vector(-0.8255, 7.5, 0)), False)
sketch5.addConstraint(Sketcher.Constraint("Coincident", 0, 2, 1, 1))
sketch5.addConstraint(Sketcher.Constraint("Coincident", 1, 2, 2, 1))
sketch5.addConstraint(Sketcher.Constraint("Coincident", 2, 2, 3, 1))
sketch5.addConstraint(Sketcher.Constraint("Coincident", 3, 2, 0, 1))
sketch5.addConstraint(Sketcher.Constraint("Coincident", 4, 2, 5, 1))
sketch5.addConstraint(Sketcher.Constraint("Coincident", 5, 2, 6, 1))
sketch5.addConstraint(Sketcher.Constraint("Coincident", 6, 2, 7, 1))
sketch5.addConstraint(Sketcher.Constraint("Coincident", 7, 2, 4, 1))
sketch5.addConstraint(Sketcher.Constraint("Coincident", 8, 2, 9, 1))
sketch5.addConstraint(Sketcher.Constraint("Coincident", 9, 2, 10, 1))
sketch5.addConstraint(Sketcher.Constraint("Coincident", 10, 2, 11, 1))
sketch5.addConstraint(Sketcher.Constraint("Coincident", 11, 2, 8, 1))
sketch5.addConstraint(Sketcher.Constraint("Coincident", 12, 2, 13, 1))
sketch5.addConstraint(Sketcher.Constraint("Coincident", 13, 2, 14, 1))
sketch5.addConstraint(Sketcher.Constraint("Coincident", 14, 2, 15, 1))
sketch5.addConstraint(Sketcher.Constraint("Coincident", 15, 2, 12, 1))
sketch5.addConstraint(Sketcher.Constraint("Vertical", 0))
sketch5.addConstraint(Sketcher.Constraint("Horizontal", 1))
sketch5.addConstraint(Sketcher.Constraint("Vertical", 2))
sketch5.addConstraint(Sketcher.Constraint("Horizontal", 3))
sketch5.addConstraint(Sketcher.Constraint("Vertical", 4))
sketch5.addConstraint(Sketcher.Constraint("Horizontal", 5))
sketch5.addConstraint(Sketcher.Constraint("Vertical", 6))
sketch5.addConstraint(Sketcher.Constraint("Horizontal", 7))
sketch5.addConstraint(Sketcher.Constraint("Vertical", 8))
sketch5.addConstraint(Sketcher.Constraint("Horizontal", 9))
sketch5.addConstraint(Sketcher.Constraint("Vertical", 10))
sketch5.addConstraint(Sketcher.Constraint("Horizontal", 11))
sketch5.addConstraint(Sketcher.Constraint("Vertical", 12))
sketch5.addConstraint(Sketcher.Constraint("Horizontal", 13))
sketch5.addConstraint(Sketcher.Constraint("Vertical", 14))
sketch5.addConstraint(Sketcher.Constraint("Horizontal", 15))
sketch5.addConstraint(Sketcher.Constraint("Symmetric", 2, 2, 8, 2, -1, 1))
sketch5.addConstraint(Sketcher.Constraint("Symmetric", 0, 2, 10, 2, -1, 1))
sketch5.addConstraint(Sketcher.Constraint("Symmetric", 6, 2, 12, 2, -1, 1))
sketch5.addConstraint(Sketcher.Constraint("Symmetric", 4, 2, 14, 2, -1, 1))
sketch5.addConstraint(Sketcher.Constraint("Horizontal", 1, 2, 8, 2))
sketch5.addConstraint(Sketcher.Constraint("Vertical", 7, 2, 12, 2))
sketch5.addConstraint(Sketcher.Constraint("Equal", 15, 0))
sketch5.addConstraint(Sketcher.Constraint("Equal", 11, 4))
sketch5.addConstraint(Sketcher.Constraint("DistanceX", -1, 1, 1, 2, Q("7.5 mm")))
sketch5.addConstraint(Sketcher.Constraint("DistanceY", 4, 2, -1, 1, Q("7.5 mm")))
sketch5.addConstraint(Sketcher.Constraint("DistanceX", 5, 1, 5, 2, Q("1.651 mm")))
sketch5.addConstraint(Sketcher.Constraint("DistanceX", 1, 1, 1, 2, Q("5.152935 mm")))
pocket4 = doc.addObject("PartDesign::Pocket", "Pocket003")
body.addObject(pocket4)
pocket4.Profile = sketch5
pocket4.Type = "ThroughAll"
doc.recompute()

fillet7 = doc.addObject("PartDesign::Fillet", "Fillet006")
body.addObject(fillet7)
fillet7.Base = (pocket4, edges_at(pocket4, [
    (0.826, -2.935, 0),
    (-0.826, -2.935, 0),
    (0.826, -2.347, 0),
    (-0.826, -2.347, 0),
    (2.935, 0.826, 0),
    (2.935, -0.826, 0),
    (2.347, 0.826, 0),
    (2.347, -0.826, 0),
    (-2.935, -0.826, 0),
    (-2.935, 0.826, 0),
    (-2.347, -0.826, 0),
    (-2.347, 0.826, 0),
    (-0.826, 2.935, 0),
    (0.826, 2.935, 0),
    (-0.826, 2.347, 0),
    (0.826, 2.347, 0),
]))
fillet7.Radius = 0.2

doc.recompute()
